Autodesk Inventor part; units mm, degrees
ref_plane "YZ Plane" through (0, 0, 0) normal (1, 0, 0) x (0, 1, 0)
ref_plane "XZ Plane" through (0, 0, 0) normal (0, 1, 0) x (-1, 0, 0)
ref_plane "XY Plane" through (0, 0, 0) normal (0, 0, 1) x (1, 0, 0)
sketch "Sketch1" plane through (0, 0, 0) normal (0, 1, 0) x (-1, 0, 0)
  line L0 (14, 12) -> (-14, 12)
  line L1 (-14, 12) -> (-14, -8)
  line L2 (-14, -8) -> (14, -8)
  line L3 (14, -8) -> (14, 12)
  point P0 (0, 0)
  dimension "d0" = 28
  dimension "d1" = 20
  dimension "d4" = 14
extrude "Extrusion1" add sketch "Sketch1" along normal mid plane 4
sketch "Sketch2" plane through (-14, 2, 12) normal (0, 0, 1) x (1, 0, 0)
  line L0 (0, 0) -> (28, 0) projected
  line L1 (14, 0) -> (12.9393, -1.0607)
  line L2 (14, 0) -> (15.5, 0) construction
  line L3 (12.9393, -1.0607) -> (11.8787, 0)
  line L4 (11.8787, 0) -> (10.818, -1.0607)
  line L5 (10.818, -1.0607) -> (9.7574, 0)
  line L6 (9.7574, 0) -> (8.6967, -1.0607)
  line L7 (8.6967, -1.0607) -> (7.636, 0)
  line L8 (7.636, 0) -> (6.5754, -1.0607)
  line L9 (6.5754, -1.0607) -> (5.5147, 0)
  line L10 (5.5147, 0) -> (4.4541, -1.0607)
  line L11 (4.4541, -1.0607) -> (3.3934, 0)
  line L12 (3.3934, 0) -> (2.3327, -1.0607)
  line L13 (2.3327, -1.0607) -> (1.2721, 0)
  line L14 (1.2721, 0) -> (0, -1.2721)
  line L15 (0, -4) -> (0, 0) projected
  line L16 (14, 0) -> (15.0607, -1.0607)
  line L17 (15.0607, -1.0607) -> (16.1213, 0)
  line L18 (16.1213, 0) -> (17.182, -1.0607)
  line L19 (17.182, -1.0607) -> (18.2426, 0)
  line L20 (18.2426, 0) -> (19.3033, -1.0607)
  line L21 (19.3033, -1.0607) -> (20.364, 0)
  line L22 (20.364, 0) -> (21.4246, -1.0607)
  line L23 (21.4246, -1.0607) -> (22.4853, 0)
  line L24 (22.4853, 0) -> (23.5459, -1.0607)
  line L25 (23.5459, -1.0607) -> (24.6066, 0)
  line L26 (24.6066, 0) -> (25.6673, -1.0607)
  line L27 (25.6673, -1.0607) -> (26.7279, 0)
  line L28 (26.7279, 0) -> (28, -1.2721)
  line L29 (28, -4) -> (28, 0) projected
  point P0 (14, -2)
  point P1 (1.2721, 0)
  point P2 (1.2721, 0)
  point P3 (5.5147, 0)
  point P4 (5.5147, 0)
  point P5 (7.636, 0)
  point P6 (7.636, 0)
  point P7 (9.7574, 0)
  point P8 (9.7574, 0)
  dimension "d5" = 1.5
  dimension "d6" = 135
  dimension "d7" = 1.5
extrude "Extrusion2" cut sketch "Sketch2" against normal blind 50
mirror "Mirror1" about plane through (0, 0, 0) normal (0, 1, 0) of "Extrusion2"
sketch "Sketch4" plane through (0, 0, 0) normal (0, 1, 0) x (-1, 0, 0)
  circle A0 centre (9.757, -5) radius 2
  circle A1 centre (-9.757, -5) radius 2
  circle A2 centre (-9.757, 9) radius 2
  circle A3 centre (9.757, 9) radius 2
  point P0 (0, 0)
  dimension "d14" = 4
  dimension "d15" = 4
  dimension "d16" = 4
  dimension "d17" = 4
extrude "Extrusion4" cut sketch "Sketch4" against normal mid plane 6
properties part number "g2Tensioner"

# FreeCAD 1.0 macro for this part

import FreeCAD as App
import Part
import Sketcher

V = App.Vector
Q = App.Units.Quantity

doc = App.newDocument("Part")
body = doc.addObject("PartDesign::Body", "Body")

# Sketch on XZ plane
sketch1 = doc.addObject("Sketcher::SketchObject", "Sketch")
body.addObject(sketch1)
sketch1.AttachmentSupport = (doc.XZ_Plane, [""])
sketch1.MapMode = "FlatFace"
sketch1.addGeometry([
    Part.LineSegment(V(-14, -8, 0), V(-14, 12, 0)),
    Part.LineSegment(V(-14, 12, 0), V(14, 12, 0)),
    Part.LineSegment(V(14, 12, 0), V(14, -8, 0)),
    Part.LineSegment(V(14, -8, 0), V(-14, -8, 0)),
], False)
sketch1.addConstraint([
    Sketcher.Constraint("Coincident", 0, 2, 1, 1),
    Sketcher.Constraint("Coincident", 1, 2, 2, 1),
    Sketcher.Constraint("Coincident", 2, 2, 3, 1),
    Sketcher.Constraint("Coincident", 3, 2, 0, 1),
    Sketcher.Constraint("Vertical", 0),
    Sketcher.Constraint("Horizontal", 1),
    Sketcher.Constraint("Vertical", 2),
    Sketcher.Constraint("Horizontal", 3),
    Sketcher.Constraint("DistanceX", 1, 1, 1, 2, Q("28 mm")),
    Sketcher.Constraint("DistanceY", 0, 1, 0, 2, Q("20 mm")),
    Sketcher.Constraint("DistanceX", 0, 2, -1, 1, Q("14 mm")),
    Sketcher.Constraint("DistanceY", -1, 1, 0, 2, Q("12 mm")),
])
pad1 = doc.addObject("PartDesign::Pad", "Pad")
body.addObject(pad1)
pad1.Profile = sketch1
pad1.Length = 4
pad1.Midplane = True

# Sketch on XY plane
sketch2 = doc.addObject("Sketcher::SketchObject", "Sketch001")
body.addObject(sketch2)
sketch2.AttachmentSupport = (doc.XY_Plane, [""])
sketch2.MapMode = "FlatFace"
sketch2.AttachmentOffset = App.Placement(V(0, 0, 12), App.Rotation())
sketch2.addGeometry([
    Part.LineSegment(V(14, 2, 0), V(12.7, 2, 0)),  # 0
    Part.LineSegment(V(12.7, 2, 0), V(14, 0.7, 0)),  # 1
    Part.LineSegment(V(14, 0.7, 0), V(14, 2, 0)),  # 2
    Part.LineSegment(V(12.7, 2, 0), V(10.6, 2, 0)),  # 3
    Part.LineSegment(V(10.6, 2, 0), V(11.7, 0.9, 0)),  # 4
    Part.LineSegment(V(11.7, 0.9, 0), V(12.7, 2, 0)),  # 5
    Part.LineSegment(V(10.6, 2, 0), V(8.5, 2, 0)),  # 6
    Part.LineSegment(V(8.5, 2, 0), V(9.5, 0.9, 0)),  # 7
    Part.LineSegment(V(9.5, 0.9, 0), V(10.6, 2, 0)),  # 8
    Part.LineSegment(V(8.5, 2, 0), V(6.4, 2, 0)),  # 9
    Part.LineSegment(V(6.4, 2, 0), V(7.4, 0.9, 0)),  # 10
    Part.LineSegment(V(7.4, 0.9, 0), V(8.5, 2, 0)),  # 11
    Part.LineSegment(V(6.4, 2, 0), V(4.2, 2, 0)),  # 12
    Part.LineSegment(V(4.2, 2, 0), V(5.3, 0.9, 0)),  # 13
    Part.LineSegment(V(5.3, 0.9, 0), V(6.4, 2, 0)),  # 14
    Part.LineSegment(V(4.2, 2, 0), V(2.1, 2, 0)),  # 15
    Part.LineSegment(V(2.1, 2, 0), V(3.2, 0.9, 0)),  # 16
    Part.LineSegment(V(3.2, 0.9, 0), V(4.2, 2, 0)),  # 17
    Part.LineSegment(V(2.1, 2, 0), V(0, 2, 0)),  # 18
    Part.LineSegment(V(0, 2, 0), V(1.1, 0.9, 0)),  # 19
    Part.LineSegment(V(1.1, 0.9, 0), V(2.1, 2, 0)),  # 20
    Part.LineSegment(V(0, 2, 0), V(-2.1, 2, 0)),  # 21
    Part.LineSegment(V(-2.1, 2, 0), V(-1.1, 0.9, 0)),  # 22
    Part.LineSegment(V(-1.1, 0.9, 0), V(0, 2, 0)),  # 23
    Part.LineSegment(V(-2.1, 2, 0), V(-4.2, 2, 0)),  # 24
    Part.LineSegment(V(-4.2, 2, 0), V(-3.2, 0.9, 0)),  # 25
    Part.LineSegment(V(-3.2, 0.9, 0), V(-2.1, 2, 0)),  # 26
    Part.LineSegment(V(-4.2, 2, 0), V(-6.4, 2, 0)),  # 27
    Part.LineSegment(V(-6.4, 2, 0), V(-5.3, 0.9, 0)),  # 28
    Part.LineSegment(V(-5.3, 0.9, 0), V(-4.2, 2, 0)),  # 29
    Part.LineSegment(V(-6.4, 2, 0), V(-8.5, 2, 0)),  # 30
    Part.LineSegment(V(-8.5, 2, 0), V(-7.4, 0.9, 0)),  # 31
    Part.LineSegment(V(-7.4, 0.9, 0), V(-6.4, 2, 0)),  # 32
    Part.LineSegment(V(-8.5, 2, 0), V(-10.6, 2, 0)),  # 33
    Part.LineSegment(V(-10.6, 2, 0), V(-9.5, 0.9, 0)),  # 34
    Part.LineSegment(V(-9.5, 0.9, 0), V(-8.5, 2, 0)),  # 35
    Part.LineSegment(V(-10.6, 2, 0), V(-12.7, 2, 0)),  # 36
    Part.LineSegment(V(-12.7, 2, 0), V(-11.7, 0.9, 0)),  # 37
    Part.LineSegment(V(-11.7, 0.9, 0), V(-10.6, 2, 0)),  # 38
    Part.LineSegment(V(-12.7, 2, 0), V(-14, 2, 0)),  # 39
    Part.LineSegment(V(-14, 2, 0), V(-14, 0.7, 0)),  # 40
    Part.LineSegment(V(-14, 0.7, 0), V(-12.7, 2, 0)),  # 41
], False)
sketch2.addConstraint([
    Sketcher.Constraint("Coincident", 0, 2, 1, 1),
    Sketcher.Constraint("Coincident", 1, 2, 2, 1),
    Sketcher.Constraint("Coincident", 2, 2, 0, 1),
    Sketcher.Constraint("Coincident", 3, 2, 4, 1),
    Sketcher.Constraint("Coincident", 4, 2, 5, 1),
    Sketcher.Constraint("Coincident", 5, 2, 3, 1),
    Sketcher.Constraint("Coincident", 6, 2, 7, 1),
    Sketcher.Constraint("Coincident", 7, 2, 8, 1),
    Sketcher.Constraint("Coincident", 8, 2, 6, 1),
    Sketcher.Constraint("Coincident", 9, 2, 10, 1),
    Sketcher.Constraint("Coincident", 10, 2, 11, 1),
    Sketcher.Constraint("Coincident", 11, 2, 9, 1),
    Sketcher.Constraint("Coincident", 12, 2, 13, 1),
    Sketcher.Constraint("Coincident", 13, 2, 14, 1),
    Sketcher.Constraint("Coincident", 14, 2, 12, 1),
    Sketcher.Constraint("Coincident", 15, 2, 16, 1),
    Sketcher.Constraint("Coincident", 16, 2, 17, 1),
    Sketcher.Constraint("Coincident", 17, 2, 15, 1),
    Sketcher.Constraint("Coincident", 18, 2, 19, 1),
    Sketcher.Constraint("Coincident", 19, 2, 20, 1),
    Sketcher.Constraint("Coincident", 20, 2, 18, 1),
    Sketcher.Constraint("Coincident", 21, 2, 22, 1),
    Sketcher.Constraint("Coincident", 22, 2, 23, 1),
    Sketcher.Constraint("Coincident", 23, 2, 21, 1),
    Sketcher.Constraint("Coincident", 24, 2, 25, 1),
    Sketcher.Constraint("Coincident", 25, 2, 26, 1),
    Sketcher.Constraint("Coincident", 26, 2, 24, 1),
    Sketcher.Constraint("Coincident", 27, 2, 28, 1),
    Sketcher.Constraint("Coincident", 28, 2, 29, 1),
    Sketcher.Constraint("Coincident", 29, 2, 27, 1),
    Sketcher.Constraint("Coincident", 30, 2, 31, 1),
    Sketcher.Constraint("Coincident", 31, 2, 32, 1),
    Sketcher.Constraint("Coincident", 32, 2, 30, 1),
    Sketcher.Constraint("Coincident", 33, 2, 34, 1),
    Sketcher.Constraint("Coincident", 34, 2, 35, 1),
    Sketcher.Constraint("Coincident", 35, 2, 33, 1),
    Sketcher.Constraint("Coincident", 36, 2, 37, 1),
    Sketcher.Constraint("Coincident", 37, 2, 38, 1),
    Sketcher.Constraint("Coincident", 38, 2, 36, 1),
    Sketcher.Constraint("Coincident", 39, 2, 40, 1),
    Sketcher.Constraint("Coincident", 40, 2, 41, 1),
    Sketcher.Constraint("Coincident", 41, 2, 39, 1),
    Sketcher.Constraint("Horizontal", 0),
    Sketcher.Constraint("Vertical", 2),
    Sketcher.Constraint("Horizontal", 3),
    Sketcher.Constraint("Horizontal", 6),
    Sketcher.Constraint("Horizontal", 9),
    Sketcher.Constraint("Horizontal", 12),
    Sketcher.Constraint("Horizontal", 15),
    Sketcher.Constraint("Horizontal", 18),
    Sketcher.Constraint("Horizontal", 21),
    Sketcher.Constraint("Horizontal", 24),
    Sketcher.Constraint("Horizontal", 27),
    Sketcher.Constraint("Horizontal", 30),
    Sketcher.Constraint("Horizontal", 33),
    Sketcher.Constraint("Horizontal", 36),
    Sketcher.Constraint("Horizontal", 39),
    Sketcher.Constraint("Vertical", 40),
    Sketcher.Constraint("Coincident", 5, 2, 0, 2),
    Sketcher.Constraint("Coincident", 8, 2, 3, 2),
    Sketcher.Constraint("Coincident", 11, 2, 6, 2),
    Sketcher.Constraint("Coincident", 14, 2, 9, 2),
    Sketcher.Constraint("Coincident", 17, 2, 12, 2),
    Sketcher.Constraint("Coincident", 20, 2, 15, 2),
    Sketcher.Constraint("Coincident", 23, 2, 18, 2),
    Sketcher.Constraint("Coincident", 26, 2, 21, 2),
    Sketcher.Constraint("Coincident", 29, 2, 24, 2),
    Sketcher.Constraint("Coincident", 32, 2, 27, 2),
    Sketcher.Constraint("Coincident", 35, 2, 30, 2),
    Sketcher.Constraint("Coincident", 38, 2, 33, 2),
    Sketcher.Constraint("Coincident", 41, 2, 36, 2),
    Sketcher.Constraint("Symmetric", 19, 2, 22, 2, -2),
    Sketcher.Constraint("Symmetric", 16, 2, 25, 2, -2),
    Sketcher.Constraint("Symmetric", 13, 2, 28, 2, -2),
    Sketcher.Constraint("Symmetric", 10, 2, 31, 2, -2),
    Sketcher.Constraint("Symmetric", 7, 2, 34, 2, -2),
    Sketcher.Constraint("Symmetric", 4, 2, 37, 2, -2),
    Sketcher.Constraint("Symmetric", 1, 2, 40, 2, -2),
    Sketcher.Constraint("PointOnObject", 18, 2, -2),
    Sketcher.Constraint("Parallel", 1, 4),
    Sketcher.Constraint("Perpendicular", 4, 5),
    Sketcher.Constraint("Perpendicular", 5, 7),
    Sketcher.Constraint("Perpendicular", 7, 8),
    Sketcher.Constraint("Perpendicular", 8, 10),
    Sketcher.Constraint("Perpendicular", 10, 11),
    Sketcher.Constraint("Perpendicular", 11, 13),
    Sketcher.Constraint("Perpendicular", 13, 14),
    Sketcher.Constraint("Perpendicular", 14, 16),
    Sketcher.Constraint("Perpendicular", 16, 17),
    Sketcher.Constraint("Perpendicular", 17, 19),
    Sketcher.Constraint("Perpendicular", 19, 20),
    Sketcher.Constraint("Perpendicular", 20, 22),
    Sketcher.Constraint("Perpendicular", 22, 23),
    Sketcher.Constraint("Perpendicular", 23, 25),
    Sketcher.Constraint("Perpendicular", 26, 28),
    Sketcher.Constraint("Perpendicular", 29, 31),
    Sketcher.Constraint("Perpendicular", 32, 34),
    Sketcher.Constraint("Perpendicular", 35, 37),
    Sketcher.Constraint("Horizontal", 4, 2, 7, 2),
    Sketcher.Constraint("Horizontal", 7, 2, 10, 2),
    Sketcher.Constraint("Horizontal", 10, 2, 13, 2),
    Sketcher.Constraint("Horizontal", 13, 2, 16, 2),
    Sketcher.Constraint("Horizontal", 16, 2, 19, 2),
    Sketcher.Constraint("Distance", 4, Q("1.5 mm")),
    Sketcher.Constraint("DistanceY", -1, 1, 0, 2, Q("2 mm")),
    Sketcher.Constraint("DistanceX", -1, 1, 1, 2, Q("14 mm")),
])
pocket1 = doc.addObject("PartDesign::Pocket", "Pocket")
body.addObject(pocket1)
pocket1.Profile = sketch2
pocket1.Length = 50
doc.recompute()

mirrored = doc.addObject("PartDesign::Mirrored", "Mirrored")
body.addObject(mirrored)
mirrored.Originals = [pocket1]
mirrored.MirrorPlane = (doc.XZ_Plane, [""])
body.Tip = mirrored

# Sketch on XZ plane
sketch3 = doc.addObject("Sketcher::SketchObject", "Sketch002")
body.addObject(sketch3)
sketch3.AttachmentSupport = (doc.XZ_Plane, [""])
sketch3.MapMode = "FlatFace"
sketch3.addGeometry([
    Part.Circle(V(-9.8, -5, 0), V(0, 0, 1), 2),
    Part.Circle(V(9.8, -5, 0), V(0, 0, 1), 2),
    Part.Circle(V(9.8, 9, 0), V(0, 0, 1), 2),
    Part.Circle(V(-9.8, 9, 0), V(0, 0, 1), 2),
], False)
sketch3.addConstraint([
    Sketcher.Constraint("Equal", 0, 1),
    Sketcher.Constraint("Equal", 1, 2),
    Sketcher.Constraint("Equal", 2, 3),
    Sketcher.Constraint("Symmetric", 0, 3, 1, 3, -2),
    Sketcher.Constraint("Symmetric", 2, 3, 3, 3, -2),
    Sketcher.Constraint("Vertical", 1, 3, 2, 3),
    Sketcher.Constraint("Diameter", 0, Q("4 mm")),
    Sketcher.Constraint("DistanceY", 0, 3, -1, 1, Q("5 mm")),
    Sketcher.Constraint("DistanceY", -1, 1, 2, 3, Q("9 mm")),
    Sketcher.Constraint("DistanceX", 0, 3, -1, 1, Q("9.757 mm")),
])
pocket2 = doc.addObject("PartDesign::Pocket", "Pocket001")
body.addObject(pocket2)
pocket2.Profile = sketch3
pocket2.Length = 6
pocket2.Midplane = True

doc.recompute()
